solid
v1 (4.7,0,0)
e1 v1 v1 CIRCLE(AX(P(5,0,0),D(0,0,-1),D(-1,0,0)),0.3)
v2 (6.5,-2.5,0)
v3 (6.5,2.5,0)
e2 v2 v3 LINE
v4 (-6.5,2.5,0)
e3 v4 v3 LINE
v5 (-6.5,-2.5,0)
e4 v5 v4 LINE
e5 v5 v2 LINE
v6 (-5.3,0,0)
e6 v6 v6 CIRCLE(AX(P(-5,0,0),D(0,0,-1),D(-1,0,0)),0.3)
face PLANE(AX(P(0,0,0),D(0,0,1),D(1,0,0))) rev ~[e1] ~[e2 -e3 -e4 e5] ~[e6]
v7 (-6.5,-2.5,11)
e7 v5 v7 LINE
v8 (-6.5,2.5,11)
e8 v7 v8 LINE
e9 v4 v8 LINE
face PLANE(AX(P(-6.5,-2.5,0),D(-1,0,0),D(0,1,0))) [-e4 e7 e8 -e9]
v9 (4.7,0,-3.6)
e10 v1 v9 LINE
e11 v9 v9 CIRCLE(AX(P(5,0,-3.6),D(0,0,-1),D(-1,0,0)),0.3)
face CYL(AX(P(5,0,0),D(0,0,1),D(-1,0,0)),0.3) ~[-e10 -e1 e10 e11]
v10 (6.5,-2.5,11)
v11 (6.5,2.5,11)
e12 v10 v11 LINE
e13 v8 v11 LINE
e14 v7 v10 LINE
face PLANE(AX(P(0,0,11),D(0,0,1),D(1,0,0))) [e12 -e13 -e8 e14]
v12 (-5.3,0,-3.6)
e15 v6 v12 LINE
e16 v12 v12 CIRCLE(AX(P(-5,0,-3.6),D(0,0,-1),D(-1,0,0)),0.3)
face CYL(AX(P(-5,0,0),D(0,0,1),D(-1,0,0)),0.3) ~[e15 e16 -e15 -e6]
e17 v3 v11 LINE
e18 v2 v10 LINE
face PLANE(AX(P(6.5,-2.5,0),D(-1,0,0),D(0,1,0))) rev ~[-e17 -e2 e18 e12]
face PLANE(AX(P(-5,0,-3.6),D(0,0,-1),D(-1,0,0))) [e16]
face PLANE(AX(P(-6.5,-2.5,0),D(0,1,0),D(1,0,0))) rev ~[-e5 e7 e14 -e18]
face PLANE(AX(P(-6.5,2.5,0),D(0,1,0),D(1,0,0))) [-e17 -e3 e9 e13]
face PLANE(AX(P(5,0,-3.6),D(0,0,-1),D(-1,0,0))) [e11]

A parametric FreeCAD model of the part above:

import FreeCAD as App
import Part
import Sketcher

V = App.Vector
Q = App.Units.Quantity


def add_polygon(sketch, points):
    """Adds a closed chain of lines whose ends are joined by coincident constraints."""
    first, n = sketch.GeometryCount, len(points)
    for a, b in zip(points, points[1:] + points[:1]):
        sketch.addGeometry(Part.LineSegment(App.Vector(*a, 0), App.Vector(*b, 0)), False)
    for i in range(n):
        sketch.addConstraint(Sketcher.Constraint("Coincident", first + i, 2, first + (i + 1) % n, 1))

doc = App.newDocument("Part")
params = doc.addObject("Spreadsheet::Sheet", "Params")
for row, (alias, value) in enumerate([
    ("sketch1_width", "13 mm"),
    ("sketch1_height", "5 mm"),
    ("pad1_length", "11 mm"),
    ("sketch2_diameter", "0.6 mm"),
    ("pad2_length", "3.6 mm"),
], start=1):
    params.set(f"A{row}", alias)
    params.set(f"B{row}", "=" + value)
    params.setAlias(f"B{row}", alias)

body = doc.addObject("PartDesign::Body", "Body")

sketch1 = body.newObject("Sketcher::SketchObject", "Sketch")
sketch1.AttachmentSupport = (doc.getObject("XY_Plane"), [""])
sketch1.MapMode = "FlatFace"
add_polygon(sketch1, [(-6, 2), (-6, -2), (6, -2), (6, 2)])
sketch1.addConstraint([
    Sketcher.Constraint("Vertical", 0),
    Sketcher.Constraint("Horizontal", 1),
    Sketcher.Constraint("Vertical", 2),
    Sketcher.Constraint("Horizontal", 3),
    Sketcher.Constraint("Symmetric", 0, 2, 2, 2, -1, 1),
    Sketcher.Constraint("DistanceX", 1, 1, 1, 2, Q("13 mm")),
    Sketcher.Constraint("DistanceY", 0, 2, 0, 1, Q("5 mm")),
])
sketch1.setExpression("Constraints[9]", "Params.sketch1_width")
sketch1.setExpression("Constraints[10]", "Params.sketch1_height")
pad1 = body.newObject("PartDesign::Pad", "Pad")
pad1.Profile = sketch1
pad1.setExpression("Length", "Params.pad1_length")

sketch2 = body.newObject("Sketcher::SketchObject", "Sketch001")
sketch2.AttachmentSupport = (doc.getObject("XY_Plane"), [""])
sketch2.MapMode = "FlatFace"
sketch2.addGeometry([
    Part.Circle(V(5, 0, 0), V(0, 0, 1), 0.3),
    Part.Circle(V(-5, 0, 0), V(0, 0, 1), 0.3),
], False)
sketch2.addConstraint([
    Sketcher.Constraint("Equal", 0, 1),
    Sketcher.Constraint("Symmetric", 0, 3, 1, 3, -1, 1),
    Sketcher.Constraint("PointOnObject", 0, 3, -1),
    Sketcher.Constraint("Diameter", 0, Q("0.6 mm")),
    Sketcher.Constraint("DistanceX", -1, 1, 0, 3, Q("5 mm")),
])
sketch2.setExpression("Constraints[3]", "Params.sketch2_diameter")
pad2 = body.newObject("PartDesign::Pad", "Pad001")
pad2.Profile = sketch2
pad2.setExpression("Length", "Params.pad2_length")
pad2.Reversed = True

doc.recompute()
